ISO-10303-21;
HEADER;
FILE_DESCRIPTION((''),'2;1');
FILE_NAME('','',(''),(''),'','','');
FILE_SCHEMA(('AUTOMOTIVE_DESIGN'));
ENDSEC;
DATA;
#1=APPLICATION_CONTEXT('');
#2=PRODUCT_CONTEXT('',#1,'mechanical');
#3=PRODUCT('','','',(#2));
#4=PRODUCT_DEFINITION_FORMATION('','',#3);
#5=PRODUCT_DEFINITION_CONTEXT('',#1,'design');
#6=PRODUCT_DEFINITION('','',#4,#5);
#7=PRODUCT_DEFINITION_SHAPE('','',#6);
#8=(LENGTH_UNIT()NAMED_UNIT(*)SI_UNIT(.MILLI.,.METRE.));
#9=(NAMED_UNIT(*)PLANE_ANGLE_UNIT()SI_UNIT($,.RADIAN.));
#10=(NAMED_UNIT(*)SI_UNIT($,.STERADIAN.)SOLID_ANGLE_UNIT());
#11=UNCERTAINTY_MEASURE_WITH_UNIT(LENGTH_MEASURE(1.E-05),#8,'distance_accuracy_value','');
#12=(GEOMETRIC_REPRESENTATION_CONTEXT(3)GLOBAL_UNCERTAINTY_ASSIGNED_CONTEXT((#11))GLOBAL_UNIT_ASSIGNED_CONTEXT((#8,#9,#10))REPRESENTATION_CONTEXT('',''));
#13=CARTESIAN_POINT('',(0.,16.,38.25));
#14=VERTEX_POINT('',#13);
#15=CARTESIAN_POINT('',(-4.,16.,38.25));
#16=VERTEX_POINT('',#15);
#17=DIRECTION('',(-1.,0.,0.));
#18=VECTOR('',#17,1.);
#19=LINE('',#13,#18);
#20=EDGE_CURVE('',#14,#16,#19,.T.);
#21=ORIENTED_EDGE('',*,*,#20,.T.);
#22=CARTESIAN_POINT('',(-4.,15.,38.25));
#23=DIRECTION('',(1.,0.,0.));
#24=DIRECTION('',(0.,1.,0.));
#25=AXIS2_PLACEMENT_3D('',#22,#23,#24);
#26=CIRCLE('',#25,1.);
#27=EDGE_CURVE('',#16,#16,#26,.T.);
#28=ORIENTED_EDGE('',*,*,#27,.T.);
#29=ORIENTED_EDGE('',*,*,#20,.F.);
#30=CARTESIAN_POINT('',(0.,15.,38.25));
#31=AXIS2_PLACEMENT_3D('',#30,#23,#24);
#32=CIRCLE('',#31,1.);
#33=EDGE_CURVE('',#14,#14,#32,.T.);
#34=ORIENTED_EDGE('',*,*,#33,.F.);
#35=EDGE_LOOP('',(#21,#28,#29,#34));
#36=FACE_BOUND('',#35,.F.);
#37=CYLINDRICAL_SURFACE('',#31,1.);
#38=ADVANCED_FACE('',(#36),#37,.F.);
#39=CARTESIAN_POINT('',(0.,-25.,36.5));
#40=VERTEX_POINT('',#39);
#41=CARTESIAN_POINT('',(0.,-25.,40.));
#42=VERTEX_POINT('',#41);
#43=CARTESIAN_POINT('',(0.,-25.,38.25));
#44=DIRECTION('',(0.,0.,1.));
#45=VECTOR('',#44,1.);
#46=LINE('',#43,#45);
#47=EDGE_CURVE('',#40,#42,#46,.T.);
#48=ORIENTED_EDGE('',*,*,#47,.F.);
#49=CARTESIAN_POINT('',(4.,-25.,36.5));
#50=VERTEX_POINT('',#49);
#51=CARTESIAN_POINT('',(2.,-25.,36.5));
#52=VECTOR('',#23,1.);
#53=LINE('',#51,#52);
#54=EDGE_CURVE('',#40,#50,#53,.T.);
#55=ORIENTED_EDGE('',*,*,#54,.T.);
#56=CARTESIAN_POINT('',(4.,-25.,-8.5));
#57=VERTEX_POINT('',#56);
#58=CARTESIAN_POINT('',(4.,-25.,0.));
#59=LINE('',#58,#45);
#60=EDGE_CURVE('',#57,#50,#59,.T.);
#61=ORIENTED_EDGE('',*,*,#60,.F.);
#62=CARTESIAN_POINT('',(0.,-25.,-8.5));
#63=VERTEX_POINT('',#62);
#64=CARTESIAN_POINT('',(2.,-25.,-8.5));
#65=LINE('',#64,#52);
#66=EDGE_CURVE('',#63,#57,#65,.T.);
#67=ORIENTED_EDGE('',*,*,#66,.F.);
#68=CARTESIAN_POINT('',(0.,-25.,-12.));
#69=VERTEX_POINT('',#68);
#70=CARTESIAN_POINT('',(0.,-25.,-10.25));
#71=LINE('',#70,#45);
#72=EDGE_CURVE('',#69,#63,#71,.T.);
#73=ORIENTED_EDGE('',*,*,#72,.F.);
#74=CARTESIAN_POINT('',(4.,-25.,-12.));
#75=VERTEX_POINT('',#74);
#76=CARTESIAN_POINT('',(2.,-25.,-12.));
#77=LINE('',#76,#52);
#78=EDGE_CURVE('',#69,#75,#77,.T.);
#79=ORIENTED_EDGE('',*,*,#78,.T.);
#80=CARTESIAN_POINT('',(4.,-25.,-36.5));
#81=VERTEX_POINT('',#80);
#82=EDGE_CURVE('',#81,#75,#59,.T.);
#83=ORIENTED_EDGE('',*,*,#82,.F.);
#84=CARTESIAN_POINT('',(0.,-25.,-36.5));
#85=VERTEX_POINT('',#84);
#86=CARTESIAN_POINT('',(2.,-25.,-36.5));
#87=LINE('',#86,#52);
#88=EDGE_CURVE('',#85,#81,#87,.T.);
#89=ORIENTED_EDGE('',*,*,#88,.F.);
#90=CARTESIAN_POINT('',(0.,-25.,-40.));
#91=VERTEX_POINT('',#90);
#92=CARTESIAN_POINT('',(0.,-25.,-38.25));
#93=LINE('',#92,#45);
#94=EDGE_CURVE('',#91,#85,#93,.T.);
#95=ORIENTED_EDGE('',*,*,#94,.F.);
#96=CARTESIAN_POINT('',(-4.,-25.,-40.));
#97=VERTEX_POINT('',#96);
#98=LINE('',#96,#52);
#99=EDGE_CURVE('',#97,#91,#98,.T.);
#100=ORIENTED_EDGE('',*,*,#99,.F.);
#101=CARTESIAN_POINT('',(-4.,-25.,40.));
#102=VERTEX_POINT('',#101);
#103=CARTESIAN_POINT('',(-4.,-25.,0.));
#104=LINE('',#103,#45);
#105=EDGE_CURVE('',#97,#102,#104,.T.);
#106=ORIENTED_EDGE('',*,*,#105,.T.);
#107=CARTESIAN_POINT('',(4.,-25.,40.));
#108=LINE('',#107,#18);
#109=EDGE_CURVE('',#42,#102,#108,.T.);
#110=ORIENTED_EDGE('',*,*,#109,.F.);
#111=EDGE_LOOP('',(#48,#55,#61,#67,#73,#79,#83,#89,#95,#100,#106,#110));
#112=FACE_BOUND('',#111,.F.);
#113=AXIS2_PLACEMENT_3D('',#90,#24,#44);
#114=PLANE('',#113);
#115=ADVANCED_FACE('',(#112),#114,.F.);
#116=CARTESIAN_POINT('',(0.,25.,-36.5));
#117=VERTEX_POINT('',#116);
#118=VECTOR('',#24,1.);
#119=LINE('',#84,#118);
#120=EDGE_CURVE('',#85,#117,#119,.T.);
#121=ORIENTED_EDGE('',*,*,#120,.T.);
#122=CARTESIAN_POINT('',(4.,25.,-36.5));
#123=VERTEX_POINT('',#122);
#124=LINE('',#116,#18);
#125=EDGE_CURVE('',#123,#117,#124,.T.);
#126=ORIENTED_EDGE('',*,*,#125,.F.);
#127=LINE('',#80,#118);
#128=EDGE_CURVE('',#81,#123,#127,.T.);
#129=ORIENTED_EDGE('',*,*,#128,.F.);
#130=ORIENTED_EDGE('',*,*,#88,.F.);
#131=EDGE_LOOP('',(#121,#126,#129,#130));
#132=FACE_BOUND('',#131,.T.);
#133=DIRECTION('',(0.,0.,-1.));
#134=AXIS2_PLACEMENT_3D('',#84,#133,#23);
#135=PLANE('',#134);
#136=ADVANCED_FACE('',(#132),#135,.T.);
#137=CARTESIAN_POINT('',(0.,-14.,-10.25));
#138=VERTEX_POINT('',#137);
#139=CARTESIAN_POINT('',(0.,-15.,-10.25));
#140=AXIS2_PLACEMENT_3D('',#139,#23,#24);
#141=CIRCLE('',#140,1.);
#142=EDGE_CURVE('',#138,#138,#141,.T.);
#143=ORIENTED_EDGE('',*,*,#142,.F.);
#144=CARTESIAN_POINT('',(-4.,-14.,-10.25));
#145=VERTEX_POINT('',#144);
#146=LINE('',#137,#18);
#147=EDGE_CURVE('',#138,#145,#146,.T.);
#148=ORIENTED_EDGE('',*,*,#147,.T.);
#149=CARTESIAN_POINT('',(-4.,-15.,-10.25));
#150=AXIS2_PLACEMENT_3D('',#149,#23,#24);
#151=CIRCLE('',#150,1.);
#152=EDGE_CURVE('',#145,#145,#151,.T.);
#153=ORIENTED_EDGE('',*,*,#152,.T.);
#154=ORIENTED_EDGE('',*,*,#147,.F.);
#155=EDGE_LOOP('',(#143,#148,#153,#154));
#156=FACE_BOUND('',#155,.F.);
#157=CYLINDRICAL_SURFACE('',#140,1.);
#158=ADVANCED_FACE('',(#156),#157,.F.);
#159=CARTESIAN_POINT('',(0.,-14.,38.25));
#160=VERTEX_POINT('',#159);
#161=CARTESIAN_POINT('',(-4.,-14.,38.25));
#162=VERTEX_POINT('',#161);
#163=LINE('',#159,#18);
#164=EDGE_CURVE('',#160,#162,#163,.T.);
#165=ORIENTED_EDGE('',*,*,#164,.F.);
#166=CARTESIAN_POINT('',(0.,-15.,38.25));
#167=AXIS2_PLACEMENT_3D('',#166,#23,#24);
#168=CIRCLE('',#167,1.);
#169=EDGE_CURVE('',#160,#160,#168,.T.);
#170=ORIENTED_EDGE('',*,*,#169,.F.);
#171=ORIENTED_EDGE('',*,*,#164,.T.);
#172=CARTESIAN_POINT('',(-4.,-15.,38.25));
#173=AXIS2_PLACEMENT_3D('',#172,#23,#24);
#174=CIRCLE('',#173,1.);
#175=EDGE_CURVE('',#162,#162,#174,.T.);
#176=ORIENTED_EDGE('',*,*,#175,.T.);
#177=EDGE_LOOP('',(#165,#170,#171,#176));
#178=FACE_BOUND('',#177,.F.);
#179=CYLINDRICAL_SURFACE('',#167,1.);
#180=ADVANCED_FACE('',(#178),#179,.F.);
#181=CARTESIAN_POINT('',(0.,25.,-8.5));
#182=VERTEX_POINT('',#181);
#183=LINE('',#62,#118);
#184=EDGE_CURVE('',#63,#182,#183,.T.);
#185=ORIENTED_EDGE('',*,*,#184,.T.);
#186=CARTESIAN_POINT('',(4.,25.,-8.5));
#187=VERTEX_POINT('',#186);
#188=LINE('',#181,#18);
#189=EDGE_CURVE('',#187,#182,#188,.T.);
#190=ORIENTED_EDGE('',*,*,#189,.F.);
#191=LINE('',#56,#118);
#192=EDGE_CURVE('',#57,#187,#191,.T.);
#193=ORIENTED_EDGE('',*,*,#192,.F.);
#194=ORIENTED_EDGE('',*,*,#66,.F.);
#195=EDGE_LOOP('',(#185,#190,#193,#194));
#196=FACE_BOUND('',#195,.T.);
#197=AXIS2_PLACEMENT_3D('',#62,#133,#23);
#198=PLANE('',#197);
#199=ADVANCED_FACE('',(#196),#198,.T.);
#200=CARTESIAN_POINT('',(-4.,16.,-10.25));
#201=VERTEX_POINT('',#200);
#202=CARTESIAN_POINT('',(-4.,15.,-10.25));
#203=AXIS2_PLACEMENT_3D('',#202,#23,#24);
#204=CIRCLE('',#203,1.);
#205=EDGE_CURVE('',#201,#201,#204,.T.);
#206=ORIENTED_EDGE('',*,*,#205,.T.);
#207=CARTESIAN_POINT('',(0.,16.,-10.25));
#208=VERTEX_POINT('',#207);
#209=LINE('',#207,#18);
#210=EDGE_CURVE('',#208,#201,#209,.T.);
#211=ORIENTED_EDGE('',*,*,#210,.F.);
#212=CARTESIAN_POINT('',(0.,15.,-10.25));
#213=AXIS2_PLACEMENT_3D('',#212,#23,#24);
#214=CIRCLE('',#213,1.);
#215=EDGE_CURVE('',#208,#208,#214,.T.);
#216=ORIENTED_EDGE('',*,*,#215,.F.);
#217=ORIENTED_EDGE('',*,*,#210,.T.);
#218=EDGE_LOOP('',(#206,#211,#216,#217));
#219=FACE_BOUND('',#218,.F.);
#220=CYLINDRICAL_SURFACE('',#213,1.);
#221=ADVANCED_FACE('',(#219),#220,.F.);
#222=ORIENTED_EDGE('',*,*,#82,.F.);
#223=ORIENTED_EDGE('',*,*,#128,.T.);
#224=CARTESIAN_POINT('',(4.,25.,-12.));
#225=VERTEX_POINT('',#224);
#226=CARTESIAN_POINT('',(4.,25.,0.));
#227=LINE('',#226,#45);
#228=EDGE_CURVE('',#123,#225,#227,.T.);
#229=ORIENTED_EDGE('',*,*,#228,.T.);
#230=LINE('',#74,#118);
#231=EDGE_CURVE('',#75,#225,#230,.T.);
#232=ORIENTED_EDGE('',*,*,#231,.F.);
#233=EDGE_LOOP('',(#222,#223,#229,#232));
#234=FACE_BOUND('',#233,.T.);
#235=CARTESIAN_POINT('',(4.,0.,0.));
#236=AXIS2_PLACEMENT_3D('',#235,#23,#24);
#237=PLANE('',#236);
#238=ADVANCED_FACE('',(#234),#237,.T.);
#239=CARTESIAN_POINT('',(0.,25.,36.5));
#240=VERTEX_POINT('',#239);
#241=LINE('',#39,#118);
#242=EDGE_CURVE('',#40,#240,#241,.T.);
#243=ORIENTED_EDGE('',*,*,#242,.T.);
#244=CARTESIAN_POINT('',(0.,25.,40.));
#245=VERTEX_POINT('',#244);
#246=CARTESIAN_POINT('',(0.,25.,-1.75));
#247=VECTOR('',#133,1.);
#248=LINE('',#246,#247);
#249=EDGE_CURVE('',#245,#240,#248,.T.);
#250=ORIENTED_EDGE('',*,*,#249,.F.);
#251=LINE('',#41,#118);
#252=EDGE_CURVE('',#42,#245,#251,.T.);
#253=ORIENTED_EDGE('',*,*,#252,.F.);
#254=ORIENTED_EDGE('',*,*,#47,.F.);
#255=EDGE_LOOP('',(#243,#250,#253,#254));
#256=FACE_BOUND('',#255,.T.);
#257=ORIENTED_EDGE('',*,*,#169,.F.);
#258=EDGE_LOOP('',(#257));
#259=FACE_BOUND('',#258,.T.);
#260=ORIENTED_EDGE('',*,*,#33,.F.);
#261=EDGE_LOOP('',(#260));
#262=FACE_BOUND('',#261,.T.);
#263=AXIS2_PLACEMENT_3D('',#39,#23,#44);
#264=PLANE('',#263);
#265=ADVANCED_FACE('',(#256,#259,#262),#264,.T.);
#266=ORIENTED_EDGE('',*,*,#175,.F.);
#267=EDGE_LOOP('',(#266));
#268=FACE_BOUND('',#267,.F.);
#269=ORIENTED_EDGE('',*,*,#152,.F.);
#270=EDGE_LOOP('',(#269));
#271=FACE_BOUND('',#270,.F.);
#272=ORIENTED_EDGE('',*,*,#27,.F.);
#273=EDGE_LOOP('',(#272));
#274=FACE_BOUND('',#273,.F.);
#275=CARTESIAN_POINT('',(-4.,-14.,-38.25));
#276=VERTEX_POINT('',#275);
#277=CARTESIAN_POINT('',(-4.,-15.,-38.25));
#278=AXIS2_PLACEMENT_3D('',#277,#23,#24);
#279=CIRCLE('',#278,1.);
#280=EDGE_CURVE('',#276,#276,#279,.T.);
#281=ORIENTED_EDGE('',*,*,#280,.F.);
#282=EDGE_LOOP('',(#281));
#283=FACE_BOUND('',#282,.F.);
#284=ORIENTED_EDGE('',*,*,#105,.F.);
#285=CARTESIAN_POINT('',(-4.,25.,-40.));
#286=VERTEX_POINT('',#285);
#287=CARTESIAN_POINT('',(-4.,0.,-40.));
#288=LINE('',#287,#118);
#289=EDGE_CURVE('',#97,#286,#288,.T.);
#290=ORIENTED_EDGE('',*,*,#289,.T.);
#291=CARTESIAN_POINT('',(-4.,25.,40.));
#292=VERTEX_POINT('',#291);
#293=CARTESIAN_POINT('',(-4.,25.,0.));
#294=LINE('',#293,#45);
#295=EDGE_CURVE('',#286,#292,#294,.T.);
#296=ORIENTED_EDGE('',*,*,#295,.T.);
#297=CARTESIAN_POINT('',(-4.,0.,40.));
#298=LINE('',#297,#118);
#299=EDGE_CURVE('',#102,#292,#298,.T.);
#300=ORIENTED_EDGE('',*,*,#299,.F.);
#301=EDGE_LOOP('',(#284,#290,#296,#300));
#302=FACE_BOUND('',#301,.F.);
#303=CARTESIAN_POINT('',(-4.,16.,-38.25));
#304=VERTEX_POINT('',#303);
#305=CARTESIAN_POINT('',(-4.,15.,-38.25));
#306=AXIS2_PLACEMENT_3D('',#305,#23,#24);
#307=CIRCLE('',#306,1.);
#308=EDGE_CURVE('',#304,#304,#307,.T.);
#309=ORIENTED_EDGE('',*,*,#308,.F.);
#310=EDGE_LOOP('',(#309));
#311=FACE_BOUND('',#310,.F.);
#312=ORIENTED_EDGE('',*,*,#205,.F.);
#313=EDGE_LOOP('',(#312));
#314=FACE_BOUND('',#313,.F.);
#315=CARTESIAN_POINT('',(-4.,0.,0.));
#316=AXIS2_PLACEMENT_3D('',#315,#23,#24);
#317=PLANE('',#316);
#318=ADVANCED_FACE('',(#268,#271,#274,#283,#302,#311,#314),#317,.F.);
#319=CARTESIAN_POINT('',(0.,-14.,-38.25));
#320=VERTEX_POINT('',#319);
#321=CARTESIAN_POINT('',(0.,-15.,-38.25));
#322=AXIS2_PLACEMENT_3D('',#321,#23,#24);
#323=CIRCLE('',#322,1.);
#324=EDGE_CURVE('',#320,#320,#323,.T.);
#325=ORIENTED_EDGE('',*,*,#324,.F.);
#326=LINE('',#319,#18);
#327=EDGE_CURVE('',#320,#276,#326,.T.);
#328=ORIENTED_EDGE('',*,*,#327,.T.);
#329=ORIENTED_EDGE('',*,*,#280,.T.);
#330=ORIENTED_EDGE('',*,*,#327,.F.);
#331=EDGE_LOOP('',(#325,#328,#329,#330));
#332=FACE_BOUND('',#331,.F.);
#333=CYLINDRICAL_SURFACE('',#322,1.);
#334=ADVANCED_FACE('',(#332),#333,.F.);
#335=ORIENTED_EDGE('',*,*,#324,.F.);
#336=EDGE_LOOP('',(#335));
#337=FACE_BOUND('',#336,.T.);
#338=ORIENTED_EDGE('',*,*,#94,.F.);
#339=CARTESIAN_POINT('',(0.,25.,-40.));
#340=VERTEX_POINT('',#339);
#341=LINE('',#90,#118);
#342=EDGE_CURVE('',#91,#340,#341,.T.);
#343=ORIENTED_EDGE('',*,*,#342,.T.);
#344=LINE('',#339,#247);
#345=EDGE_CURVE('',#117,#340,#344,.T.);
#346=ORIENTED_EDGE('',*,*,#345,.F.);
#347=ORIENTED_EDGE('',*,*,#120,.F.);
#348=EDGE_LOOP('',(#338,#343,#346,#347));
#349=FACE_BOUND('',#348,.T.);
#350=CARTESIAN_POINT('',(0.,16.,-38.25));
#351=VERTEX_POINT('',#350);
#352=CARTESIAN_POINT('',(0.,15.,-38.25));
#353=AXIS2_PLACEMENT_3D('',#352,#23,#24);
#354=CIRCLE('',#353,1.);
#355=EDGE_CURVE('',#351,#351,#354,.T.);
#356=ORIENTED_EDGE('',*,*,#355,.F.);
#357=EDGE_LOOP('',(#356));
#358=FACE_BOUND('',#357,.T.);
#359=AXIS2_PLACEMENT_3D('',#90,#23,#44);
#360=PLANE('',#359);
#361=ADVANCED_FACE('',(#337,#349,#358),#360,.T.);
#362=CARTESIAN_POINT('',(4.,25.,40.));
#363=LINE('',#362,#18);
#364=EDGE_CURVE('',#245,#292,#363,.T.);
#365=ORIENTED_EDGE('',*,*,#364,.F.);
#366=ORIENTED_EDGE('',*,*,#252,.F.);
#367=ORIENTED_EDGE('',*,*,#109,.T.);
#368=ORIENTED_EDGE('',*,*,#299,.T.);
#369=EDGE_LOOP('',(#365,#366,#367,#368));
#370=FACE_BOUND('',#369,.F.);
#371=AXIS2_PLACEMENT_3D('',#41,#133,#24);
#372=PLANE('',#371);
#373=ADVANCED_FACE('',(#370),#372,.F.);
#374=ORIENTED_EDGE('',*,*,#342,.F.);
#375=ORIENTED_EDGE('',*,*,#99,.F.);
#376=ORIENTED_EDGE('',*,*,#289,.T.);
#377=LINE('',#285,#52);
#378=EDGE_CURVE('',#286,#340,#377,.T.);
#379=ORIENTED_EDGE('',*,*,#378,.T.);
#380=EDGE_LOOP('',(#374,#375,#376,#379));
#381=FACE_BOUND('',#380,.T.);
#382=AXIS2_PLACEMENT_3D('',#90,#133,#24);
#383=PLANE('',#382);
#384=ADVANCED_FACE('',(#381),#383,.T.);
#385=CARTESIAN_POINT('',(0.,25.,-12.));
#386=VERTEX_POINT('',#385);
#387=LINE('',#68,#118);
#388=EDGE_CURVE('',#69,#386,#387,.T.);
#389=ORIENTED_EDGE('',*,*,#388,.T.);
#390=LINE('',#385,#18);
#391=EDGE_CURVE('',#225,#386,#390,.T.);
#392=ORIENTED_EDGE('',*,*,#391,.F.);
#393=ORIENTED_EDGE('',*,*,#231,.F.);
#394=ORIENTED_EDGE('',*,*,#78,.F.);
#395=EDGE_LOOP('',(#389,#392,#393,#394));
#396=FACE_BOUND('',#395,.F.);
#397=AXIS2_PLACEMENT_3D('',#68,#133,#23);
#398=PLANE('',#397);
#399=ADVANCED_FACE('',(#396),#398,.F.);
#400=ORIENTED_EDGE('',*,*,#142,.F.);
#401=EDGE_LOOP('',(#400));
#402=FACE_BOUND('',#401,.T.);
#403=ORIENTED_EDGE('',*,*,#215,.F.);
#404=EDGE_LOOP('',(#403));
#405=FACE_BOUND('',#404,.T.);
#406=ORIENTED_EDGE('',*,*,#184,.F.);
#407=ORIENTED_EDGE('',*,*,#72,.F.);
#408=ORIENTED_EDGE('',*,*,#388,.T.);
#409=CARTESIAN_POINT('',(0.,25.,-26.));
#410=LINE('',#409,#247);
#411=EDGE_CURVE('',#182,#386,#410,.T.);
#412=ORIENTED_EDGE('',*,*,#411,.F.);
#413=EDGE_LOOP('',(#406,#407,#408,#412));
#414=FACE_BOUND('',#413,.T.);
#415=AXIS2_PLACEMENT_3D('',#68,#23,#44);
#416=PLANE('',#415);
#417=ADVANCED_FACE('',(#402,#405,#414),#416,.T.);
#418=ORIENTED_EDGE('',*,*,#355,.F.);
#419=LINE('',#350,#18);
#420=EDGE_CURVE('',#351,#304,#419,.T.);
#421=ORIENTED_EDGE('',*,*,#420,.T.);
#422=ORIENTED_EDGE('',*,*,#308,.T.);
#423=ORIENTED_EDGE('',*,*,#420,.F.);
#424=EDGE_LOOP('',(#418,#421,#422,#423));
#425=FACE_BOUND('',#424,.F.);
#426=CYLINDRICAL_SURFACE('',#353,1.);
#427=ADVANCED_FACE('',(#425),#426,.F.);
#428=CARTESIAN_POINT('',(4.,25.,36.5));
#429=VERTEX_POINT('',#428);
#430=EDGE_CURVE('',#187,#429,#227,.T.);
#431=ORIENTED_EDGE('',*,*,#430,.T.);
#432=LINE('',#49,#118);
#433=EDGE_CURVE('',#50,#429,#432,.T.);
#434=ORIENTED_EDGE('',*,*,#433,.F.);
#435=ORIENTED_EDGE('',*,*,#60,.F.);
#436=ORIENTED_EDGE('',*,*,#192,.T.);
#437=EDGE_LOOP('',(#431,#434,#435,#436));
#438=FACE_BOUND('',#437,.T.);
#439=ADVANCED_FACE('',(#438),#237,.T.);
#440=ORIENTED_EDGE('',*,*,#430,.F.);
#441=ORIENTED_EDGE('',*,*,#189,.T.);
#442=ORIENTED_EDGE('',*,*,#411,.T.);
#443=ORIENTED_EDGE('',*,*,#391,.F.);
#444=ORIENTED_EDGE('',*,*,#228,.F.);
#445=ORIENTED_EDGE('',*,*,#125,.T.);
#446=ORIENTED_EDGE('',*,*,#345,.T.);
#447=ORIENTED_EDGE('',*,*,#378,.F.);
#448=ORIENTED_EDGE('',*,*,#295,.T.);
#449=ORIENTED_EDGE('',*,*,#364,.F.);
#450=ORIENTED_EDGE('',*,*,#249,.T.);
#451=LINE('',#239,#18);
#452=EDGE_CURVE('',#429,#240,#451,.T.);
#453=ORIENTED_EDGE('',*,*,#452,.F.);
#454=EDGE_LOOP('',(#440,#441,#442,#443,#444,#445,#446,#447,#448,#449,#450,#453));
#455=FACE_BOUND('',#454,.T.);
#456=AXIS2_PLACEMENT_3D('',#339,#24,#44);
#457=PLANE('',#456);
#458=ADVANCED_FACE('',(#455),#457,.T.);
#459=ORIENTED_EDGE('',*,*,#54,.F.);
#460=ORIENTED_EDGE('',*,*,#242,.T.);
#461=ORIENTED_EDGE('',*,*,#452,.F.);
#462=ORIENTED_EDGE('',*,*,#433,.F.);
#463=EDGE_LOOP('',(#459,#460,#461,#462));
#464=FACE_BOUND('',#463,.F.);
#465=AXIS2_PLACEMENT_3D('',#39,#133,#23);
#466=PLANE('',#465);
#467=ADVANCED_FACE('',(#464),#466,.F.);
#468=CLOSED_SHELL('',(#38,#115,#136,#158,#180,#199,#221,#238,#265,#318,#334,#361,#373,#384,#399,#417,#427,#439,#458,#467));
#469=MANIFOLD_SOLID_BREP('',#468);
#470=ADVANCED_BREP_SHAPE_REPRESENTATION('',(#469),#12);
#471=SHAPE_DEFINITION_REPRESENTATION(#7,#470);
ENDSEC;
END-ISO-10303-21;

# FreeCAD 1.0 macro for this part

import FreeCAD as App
import Part
import Sketcher
from FreeCAD import Vector


def add_polygon(sketch, points):
    """Adds a closed chain of lines whose ends are joined by coincident constraints."""
    first, n = sketch.GeometryCount, len(points)
    for a, b in zip(points, points[1:] + points[:1]):
        sketch.addGeometry(Part.LineSegment(App.Vector(*a, 0), App.Vector(*b, 0)), False)
    for i in range(n):
        sketch.addConstraint(Sketcher.Constraint("Coincident", first + i, 2, first + (i + 1) % n, 1))

doc = App.newDocument("Part")
body = doc.addObject("PartDesign::Body", "Body")

sketch1 = body.newObject("Sketcher::SketchObject", "Sketch")
sketch1.AttachmentSupport = (doc.getObject("YZ_Plane"), [""])
sketch1.MapMode = "FlatFace"
add_polygon(sketch1, [(-25, 40), (-25, -40), (25, -40), (25, 40)])
sketch1.addConstraint([
    Sketcher.Constraint("Vertical", 0),
    Sketcher.Constraint("Horizontal", 1),
    Sketcher.Constraint("Vertical", 2),
    Sketcher.Constraint("Horizontal", 3),
    Sketcher.Constraint("Symmetric", 0, 2, 2, 2, -1, 1),
    Sketcher.Constraint("DistanceX", 1, 1, 1, 2, 50.0),
    Sketcher.Constraint("DistanceY", 0, 2, 0, 1, 80.0),
])
pad1 = body.newObject("PartDesign::Pad", "Pad")
pad1.Profile = sketch1
pad1.Length = 8
pad1.Midplane = True

sketch2 = body.newObject("Sketcher::SketchObject", "Sketch001")
sketch2.AttachmentSupport = (doc.getObject("XZ_Plane"), [""])
sketch2.MapMode = "FlatFace"
sketch2.AttachmentOffset = App.Placement(Vector(0, 0, 25), App.Rotation())
add_polygon(sketch2, [(0, 40), (0, 36.5), (4, 36.5), (4, 40)])
add_polygon(sketch2, [(0, -8.5), (0, -12), (4, -12), (4, -8.5)])
add_polygon(sketch2, [(0, -36.5), (0, -40), (4, -40), (4, -36.5)])
sketch2.addConstraint([
    Sketcher.Constraint("Vertical", 0),
    Sketcher.Constraint("Horizontal", 1),
    Sketcher.Constraint("Vertical", 2),
    Sketcher.Constraint("Horizontal", 3),
    Sketcher.Constraint("Vertical", 4),
    Sketcher.Constraint("Horizontal", 5),
    Sketcher.Constraint("Vertical", 6),
    Sketcher.Constraint("Horizontal", 7),
    Sketcher.Constraint("Vertical", 8),
    Sketcher.Constraint("Horizontal", 9),
    Sketcher.Constraint("Vertical", 10),
    Sketcher.Constraint("Horizontal", 11),
    Sketcher.Constraint("Symmetric", 3, 2, 8, 2, -1, 1),
    Sketcher.Constraint("Symmetric", 1, 2, 10, 2, -1),
    Sketcher.Constraint("PointOnObject", 0, 2, -2),
    Sketcher.Constraint("PointOnObject", 4, 2, -2),
    Sketcher.Constraint("Vertical", 2, 2, 5, 2),
    Sketcher.Constraint("Equal", 2, 4),
    Sketcher.Constraint("DistanceX", 1, 1, 1, 2, 4.0),
    Sketcher.Constraint("DistanceY", 0, 2, 0, 1, 3.5),
    Sketcher.Constraint("DistanceY", -1, 1, 2, 2, 40.0),
    Sketcher.Constraint("DistanceY", 4, 2, -1, 1, 12.0),
])
pocket1 = body.newObject("PartDesign::Pocket", "Pocket")
pocket1.Profile = sketch2
pocket1.Type = "ThroughAll"

sketch3 = body.newObject("Sketcher::SketchObject", "Sketch002")
sketch3.AttachmentSupport = (doc.getObject("YZ_Plane"), [""])
sketch3.MapMode = "FlatFace"
sketch3.addGeometry([
    Part.Circle(Vector(-15, 38.2, 0), Vector(0, 0, 1), 1),
    Part.Circle(Vector(15, 38.2, 0), Vector(0, 0, 1), 1),
], False)
sketch3.addConstraint([
    Sketcher.Constraint("Equal", 0, 1),
    Sketcher.Constraint("Symmetric", 0, 3, 1, 3, -2),
    Sketcher.Constraint("Diameter", 0, 2.0),
    Sketcher.Constraint("DistanceX", 0, 3, -1, 1, 15.0),
    Sketcher.Constraint("DistanceY", -1, 1, 0, 3, 38.25),
])
pocket2 = body.newObject("PartDesign::Pocket", "Pocket001")
pocket2.Profile = sketch3
pocket2.Type = "ThroughAll"

sketch4 = body.newObject("Sketcher::SketchObject", "Sketch003")
sketch4.AttachmentSupport = (doc.getObject("YZ_Plane"), [""])
sketch4.MapMode = "FlatFace"
sketch4.addGeometry([
    Part.Circle(Vector(-15, -10.2, 0), Vector(0, 0, 1), 1),
    Part.Circle(Vector(15, -10.2, 0), Vector(0, 0, 1), 1),
], False)
sketch4.addConstraint([
    Sketcher.Constraint("Equal", 0, 1),
    Sketcher.Constraint("Symmetric", 0, 3, 1, 3, -2),
    Sketcher.Constraint("Diameter", 0, 2.0),
    Sketcher.Constraint("DistanceX", 0, 3, -1, 1, 15.0),
    Sketcher.Constraint("DistanceY", 0, 3, -1, 1, 10.25),
])
pocket3 = body.newObject("PartDesign::Pocket", "Pocket002")
pocket3.Profile = sketch4
pocket3.Type = "ThroughAll"

sketch5 = body.newObject("Sketcher::SketchObject", "Sketch004")
sketch5.AttachmentSupport = (doc.getObject("YZ_Plane"), [""])
sketch5.MapMode = "FlatFace"
sketch5.addGeometry([
    Part.Circle(Vector(-15, -38.2, 0), Vector(0, 0, 1), 1),
    Part.Circle(Vector(15, -38.2, 0), Vector(0, 0, 1), 1),
], False)
sketch5.addConstraint([
    Sketcher.Constraint("Equal", 0, 1),
    Sketcher.Constraint("Symmetric", 0, 3, 1, 3, -2),
    Sketcher.Constraint("Diameter", 0, 2.0),
    Sketcher.Constraint("DistanceX", 0, 3, -1, 1, 15.0),
    Sketcher.Constraint("DistanceY", 0, 3, -1, 1, 38.25),
])
pocket4 = body.newObject("PartDesign::Pocket", "Pocket003")
pocket4.Profile = sketch5
pocket4.Type = "ThroughAll"

doc.recompute()
